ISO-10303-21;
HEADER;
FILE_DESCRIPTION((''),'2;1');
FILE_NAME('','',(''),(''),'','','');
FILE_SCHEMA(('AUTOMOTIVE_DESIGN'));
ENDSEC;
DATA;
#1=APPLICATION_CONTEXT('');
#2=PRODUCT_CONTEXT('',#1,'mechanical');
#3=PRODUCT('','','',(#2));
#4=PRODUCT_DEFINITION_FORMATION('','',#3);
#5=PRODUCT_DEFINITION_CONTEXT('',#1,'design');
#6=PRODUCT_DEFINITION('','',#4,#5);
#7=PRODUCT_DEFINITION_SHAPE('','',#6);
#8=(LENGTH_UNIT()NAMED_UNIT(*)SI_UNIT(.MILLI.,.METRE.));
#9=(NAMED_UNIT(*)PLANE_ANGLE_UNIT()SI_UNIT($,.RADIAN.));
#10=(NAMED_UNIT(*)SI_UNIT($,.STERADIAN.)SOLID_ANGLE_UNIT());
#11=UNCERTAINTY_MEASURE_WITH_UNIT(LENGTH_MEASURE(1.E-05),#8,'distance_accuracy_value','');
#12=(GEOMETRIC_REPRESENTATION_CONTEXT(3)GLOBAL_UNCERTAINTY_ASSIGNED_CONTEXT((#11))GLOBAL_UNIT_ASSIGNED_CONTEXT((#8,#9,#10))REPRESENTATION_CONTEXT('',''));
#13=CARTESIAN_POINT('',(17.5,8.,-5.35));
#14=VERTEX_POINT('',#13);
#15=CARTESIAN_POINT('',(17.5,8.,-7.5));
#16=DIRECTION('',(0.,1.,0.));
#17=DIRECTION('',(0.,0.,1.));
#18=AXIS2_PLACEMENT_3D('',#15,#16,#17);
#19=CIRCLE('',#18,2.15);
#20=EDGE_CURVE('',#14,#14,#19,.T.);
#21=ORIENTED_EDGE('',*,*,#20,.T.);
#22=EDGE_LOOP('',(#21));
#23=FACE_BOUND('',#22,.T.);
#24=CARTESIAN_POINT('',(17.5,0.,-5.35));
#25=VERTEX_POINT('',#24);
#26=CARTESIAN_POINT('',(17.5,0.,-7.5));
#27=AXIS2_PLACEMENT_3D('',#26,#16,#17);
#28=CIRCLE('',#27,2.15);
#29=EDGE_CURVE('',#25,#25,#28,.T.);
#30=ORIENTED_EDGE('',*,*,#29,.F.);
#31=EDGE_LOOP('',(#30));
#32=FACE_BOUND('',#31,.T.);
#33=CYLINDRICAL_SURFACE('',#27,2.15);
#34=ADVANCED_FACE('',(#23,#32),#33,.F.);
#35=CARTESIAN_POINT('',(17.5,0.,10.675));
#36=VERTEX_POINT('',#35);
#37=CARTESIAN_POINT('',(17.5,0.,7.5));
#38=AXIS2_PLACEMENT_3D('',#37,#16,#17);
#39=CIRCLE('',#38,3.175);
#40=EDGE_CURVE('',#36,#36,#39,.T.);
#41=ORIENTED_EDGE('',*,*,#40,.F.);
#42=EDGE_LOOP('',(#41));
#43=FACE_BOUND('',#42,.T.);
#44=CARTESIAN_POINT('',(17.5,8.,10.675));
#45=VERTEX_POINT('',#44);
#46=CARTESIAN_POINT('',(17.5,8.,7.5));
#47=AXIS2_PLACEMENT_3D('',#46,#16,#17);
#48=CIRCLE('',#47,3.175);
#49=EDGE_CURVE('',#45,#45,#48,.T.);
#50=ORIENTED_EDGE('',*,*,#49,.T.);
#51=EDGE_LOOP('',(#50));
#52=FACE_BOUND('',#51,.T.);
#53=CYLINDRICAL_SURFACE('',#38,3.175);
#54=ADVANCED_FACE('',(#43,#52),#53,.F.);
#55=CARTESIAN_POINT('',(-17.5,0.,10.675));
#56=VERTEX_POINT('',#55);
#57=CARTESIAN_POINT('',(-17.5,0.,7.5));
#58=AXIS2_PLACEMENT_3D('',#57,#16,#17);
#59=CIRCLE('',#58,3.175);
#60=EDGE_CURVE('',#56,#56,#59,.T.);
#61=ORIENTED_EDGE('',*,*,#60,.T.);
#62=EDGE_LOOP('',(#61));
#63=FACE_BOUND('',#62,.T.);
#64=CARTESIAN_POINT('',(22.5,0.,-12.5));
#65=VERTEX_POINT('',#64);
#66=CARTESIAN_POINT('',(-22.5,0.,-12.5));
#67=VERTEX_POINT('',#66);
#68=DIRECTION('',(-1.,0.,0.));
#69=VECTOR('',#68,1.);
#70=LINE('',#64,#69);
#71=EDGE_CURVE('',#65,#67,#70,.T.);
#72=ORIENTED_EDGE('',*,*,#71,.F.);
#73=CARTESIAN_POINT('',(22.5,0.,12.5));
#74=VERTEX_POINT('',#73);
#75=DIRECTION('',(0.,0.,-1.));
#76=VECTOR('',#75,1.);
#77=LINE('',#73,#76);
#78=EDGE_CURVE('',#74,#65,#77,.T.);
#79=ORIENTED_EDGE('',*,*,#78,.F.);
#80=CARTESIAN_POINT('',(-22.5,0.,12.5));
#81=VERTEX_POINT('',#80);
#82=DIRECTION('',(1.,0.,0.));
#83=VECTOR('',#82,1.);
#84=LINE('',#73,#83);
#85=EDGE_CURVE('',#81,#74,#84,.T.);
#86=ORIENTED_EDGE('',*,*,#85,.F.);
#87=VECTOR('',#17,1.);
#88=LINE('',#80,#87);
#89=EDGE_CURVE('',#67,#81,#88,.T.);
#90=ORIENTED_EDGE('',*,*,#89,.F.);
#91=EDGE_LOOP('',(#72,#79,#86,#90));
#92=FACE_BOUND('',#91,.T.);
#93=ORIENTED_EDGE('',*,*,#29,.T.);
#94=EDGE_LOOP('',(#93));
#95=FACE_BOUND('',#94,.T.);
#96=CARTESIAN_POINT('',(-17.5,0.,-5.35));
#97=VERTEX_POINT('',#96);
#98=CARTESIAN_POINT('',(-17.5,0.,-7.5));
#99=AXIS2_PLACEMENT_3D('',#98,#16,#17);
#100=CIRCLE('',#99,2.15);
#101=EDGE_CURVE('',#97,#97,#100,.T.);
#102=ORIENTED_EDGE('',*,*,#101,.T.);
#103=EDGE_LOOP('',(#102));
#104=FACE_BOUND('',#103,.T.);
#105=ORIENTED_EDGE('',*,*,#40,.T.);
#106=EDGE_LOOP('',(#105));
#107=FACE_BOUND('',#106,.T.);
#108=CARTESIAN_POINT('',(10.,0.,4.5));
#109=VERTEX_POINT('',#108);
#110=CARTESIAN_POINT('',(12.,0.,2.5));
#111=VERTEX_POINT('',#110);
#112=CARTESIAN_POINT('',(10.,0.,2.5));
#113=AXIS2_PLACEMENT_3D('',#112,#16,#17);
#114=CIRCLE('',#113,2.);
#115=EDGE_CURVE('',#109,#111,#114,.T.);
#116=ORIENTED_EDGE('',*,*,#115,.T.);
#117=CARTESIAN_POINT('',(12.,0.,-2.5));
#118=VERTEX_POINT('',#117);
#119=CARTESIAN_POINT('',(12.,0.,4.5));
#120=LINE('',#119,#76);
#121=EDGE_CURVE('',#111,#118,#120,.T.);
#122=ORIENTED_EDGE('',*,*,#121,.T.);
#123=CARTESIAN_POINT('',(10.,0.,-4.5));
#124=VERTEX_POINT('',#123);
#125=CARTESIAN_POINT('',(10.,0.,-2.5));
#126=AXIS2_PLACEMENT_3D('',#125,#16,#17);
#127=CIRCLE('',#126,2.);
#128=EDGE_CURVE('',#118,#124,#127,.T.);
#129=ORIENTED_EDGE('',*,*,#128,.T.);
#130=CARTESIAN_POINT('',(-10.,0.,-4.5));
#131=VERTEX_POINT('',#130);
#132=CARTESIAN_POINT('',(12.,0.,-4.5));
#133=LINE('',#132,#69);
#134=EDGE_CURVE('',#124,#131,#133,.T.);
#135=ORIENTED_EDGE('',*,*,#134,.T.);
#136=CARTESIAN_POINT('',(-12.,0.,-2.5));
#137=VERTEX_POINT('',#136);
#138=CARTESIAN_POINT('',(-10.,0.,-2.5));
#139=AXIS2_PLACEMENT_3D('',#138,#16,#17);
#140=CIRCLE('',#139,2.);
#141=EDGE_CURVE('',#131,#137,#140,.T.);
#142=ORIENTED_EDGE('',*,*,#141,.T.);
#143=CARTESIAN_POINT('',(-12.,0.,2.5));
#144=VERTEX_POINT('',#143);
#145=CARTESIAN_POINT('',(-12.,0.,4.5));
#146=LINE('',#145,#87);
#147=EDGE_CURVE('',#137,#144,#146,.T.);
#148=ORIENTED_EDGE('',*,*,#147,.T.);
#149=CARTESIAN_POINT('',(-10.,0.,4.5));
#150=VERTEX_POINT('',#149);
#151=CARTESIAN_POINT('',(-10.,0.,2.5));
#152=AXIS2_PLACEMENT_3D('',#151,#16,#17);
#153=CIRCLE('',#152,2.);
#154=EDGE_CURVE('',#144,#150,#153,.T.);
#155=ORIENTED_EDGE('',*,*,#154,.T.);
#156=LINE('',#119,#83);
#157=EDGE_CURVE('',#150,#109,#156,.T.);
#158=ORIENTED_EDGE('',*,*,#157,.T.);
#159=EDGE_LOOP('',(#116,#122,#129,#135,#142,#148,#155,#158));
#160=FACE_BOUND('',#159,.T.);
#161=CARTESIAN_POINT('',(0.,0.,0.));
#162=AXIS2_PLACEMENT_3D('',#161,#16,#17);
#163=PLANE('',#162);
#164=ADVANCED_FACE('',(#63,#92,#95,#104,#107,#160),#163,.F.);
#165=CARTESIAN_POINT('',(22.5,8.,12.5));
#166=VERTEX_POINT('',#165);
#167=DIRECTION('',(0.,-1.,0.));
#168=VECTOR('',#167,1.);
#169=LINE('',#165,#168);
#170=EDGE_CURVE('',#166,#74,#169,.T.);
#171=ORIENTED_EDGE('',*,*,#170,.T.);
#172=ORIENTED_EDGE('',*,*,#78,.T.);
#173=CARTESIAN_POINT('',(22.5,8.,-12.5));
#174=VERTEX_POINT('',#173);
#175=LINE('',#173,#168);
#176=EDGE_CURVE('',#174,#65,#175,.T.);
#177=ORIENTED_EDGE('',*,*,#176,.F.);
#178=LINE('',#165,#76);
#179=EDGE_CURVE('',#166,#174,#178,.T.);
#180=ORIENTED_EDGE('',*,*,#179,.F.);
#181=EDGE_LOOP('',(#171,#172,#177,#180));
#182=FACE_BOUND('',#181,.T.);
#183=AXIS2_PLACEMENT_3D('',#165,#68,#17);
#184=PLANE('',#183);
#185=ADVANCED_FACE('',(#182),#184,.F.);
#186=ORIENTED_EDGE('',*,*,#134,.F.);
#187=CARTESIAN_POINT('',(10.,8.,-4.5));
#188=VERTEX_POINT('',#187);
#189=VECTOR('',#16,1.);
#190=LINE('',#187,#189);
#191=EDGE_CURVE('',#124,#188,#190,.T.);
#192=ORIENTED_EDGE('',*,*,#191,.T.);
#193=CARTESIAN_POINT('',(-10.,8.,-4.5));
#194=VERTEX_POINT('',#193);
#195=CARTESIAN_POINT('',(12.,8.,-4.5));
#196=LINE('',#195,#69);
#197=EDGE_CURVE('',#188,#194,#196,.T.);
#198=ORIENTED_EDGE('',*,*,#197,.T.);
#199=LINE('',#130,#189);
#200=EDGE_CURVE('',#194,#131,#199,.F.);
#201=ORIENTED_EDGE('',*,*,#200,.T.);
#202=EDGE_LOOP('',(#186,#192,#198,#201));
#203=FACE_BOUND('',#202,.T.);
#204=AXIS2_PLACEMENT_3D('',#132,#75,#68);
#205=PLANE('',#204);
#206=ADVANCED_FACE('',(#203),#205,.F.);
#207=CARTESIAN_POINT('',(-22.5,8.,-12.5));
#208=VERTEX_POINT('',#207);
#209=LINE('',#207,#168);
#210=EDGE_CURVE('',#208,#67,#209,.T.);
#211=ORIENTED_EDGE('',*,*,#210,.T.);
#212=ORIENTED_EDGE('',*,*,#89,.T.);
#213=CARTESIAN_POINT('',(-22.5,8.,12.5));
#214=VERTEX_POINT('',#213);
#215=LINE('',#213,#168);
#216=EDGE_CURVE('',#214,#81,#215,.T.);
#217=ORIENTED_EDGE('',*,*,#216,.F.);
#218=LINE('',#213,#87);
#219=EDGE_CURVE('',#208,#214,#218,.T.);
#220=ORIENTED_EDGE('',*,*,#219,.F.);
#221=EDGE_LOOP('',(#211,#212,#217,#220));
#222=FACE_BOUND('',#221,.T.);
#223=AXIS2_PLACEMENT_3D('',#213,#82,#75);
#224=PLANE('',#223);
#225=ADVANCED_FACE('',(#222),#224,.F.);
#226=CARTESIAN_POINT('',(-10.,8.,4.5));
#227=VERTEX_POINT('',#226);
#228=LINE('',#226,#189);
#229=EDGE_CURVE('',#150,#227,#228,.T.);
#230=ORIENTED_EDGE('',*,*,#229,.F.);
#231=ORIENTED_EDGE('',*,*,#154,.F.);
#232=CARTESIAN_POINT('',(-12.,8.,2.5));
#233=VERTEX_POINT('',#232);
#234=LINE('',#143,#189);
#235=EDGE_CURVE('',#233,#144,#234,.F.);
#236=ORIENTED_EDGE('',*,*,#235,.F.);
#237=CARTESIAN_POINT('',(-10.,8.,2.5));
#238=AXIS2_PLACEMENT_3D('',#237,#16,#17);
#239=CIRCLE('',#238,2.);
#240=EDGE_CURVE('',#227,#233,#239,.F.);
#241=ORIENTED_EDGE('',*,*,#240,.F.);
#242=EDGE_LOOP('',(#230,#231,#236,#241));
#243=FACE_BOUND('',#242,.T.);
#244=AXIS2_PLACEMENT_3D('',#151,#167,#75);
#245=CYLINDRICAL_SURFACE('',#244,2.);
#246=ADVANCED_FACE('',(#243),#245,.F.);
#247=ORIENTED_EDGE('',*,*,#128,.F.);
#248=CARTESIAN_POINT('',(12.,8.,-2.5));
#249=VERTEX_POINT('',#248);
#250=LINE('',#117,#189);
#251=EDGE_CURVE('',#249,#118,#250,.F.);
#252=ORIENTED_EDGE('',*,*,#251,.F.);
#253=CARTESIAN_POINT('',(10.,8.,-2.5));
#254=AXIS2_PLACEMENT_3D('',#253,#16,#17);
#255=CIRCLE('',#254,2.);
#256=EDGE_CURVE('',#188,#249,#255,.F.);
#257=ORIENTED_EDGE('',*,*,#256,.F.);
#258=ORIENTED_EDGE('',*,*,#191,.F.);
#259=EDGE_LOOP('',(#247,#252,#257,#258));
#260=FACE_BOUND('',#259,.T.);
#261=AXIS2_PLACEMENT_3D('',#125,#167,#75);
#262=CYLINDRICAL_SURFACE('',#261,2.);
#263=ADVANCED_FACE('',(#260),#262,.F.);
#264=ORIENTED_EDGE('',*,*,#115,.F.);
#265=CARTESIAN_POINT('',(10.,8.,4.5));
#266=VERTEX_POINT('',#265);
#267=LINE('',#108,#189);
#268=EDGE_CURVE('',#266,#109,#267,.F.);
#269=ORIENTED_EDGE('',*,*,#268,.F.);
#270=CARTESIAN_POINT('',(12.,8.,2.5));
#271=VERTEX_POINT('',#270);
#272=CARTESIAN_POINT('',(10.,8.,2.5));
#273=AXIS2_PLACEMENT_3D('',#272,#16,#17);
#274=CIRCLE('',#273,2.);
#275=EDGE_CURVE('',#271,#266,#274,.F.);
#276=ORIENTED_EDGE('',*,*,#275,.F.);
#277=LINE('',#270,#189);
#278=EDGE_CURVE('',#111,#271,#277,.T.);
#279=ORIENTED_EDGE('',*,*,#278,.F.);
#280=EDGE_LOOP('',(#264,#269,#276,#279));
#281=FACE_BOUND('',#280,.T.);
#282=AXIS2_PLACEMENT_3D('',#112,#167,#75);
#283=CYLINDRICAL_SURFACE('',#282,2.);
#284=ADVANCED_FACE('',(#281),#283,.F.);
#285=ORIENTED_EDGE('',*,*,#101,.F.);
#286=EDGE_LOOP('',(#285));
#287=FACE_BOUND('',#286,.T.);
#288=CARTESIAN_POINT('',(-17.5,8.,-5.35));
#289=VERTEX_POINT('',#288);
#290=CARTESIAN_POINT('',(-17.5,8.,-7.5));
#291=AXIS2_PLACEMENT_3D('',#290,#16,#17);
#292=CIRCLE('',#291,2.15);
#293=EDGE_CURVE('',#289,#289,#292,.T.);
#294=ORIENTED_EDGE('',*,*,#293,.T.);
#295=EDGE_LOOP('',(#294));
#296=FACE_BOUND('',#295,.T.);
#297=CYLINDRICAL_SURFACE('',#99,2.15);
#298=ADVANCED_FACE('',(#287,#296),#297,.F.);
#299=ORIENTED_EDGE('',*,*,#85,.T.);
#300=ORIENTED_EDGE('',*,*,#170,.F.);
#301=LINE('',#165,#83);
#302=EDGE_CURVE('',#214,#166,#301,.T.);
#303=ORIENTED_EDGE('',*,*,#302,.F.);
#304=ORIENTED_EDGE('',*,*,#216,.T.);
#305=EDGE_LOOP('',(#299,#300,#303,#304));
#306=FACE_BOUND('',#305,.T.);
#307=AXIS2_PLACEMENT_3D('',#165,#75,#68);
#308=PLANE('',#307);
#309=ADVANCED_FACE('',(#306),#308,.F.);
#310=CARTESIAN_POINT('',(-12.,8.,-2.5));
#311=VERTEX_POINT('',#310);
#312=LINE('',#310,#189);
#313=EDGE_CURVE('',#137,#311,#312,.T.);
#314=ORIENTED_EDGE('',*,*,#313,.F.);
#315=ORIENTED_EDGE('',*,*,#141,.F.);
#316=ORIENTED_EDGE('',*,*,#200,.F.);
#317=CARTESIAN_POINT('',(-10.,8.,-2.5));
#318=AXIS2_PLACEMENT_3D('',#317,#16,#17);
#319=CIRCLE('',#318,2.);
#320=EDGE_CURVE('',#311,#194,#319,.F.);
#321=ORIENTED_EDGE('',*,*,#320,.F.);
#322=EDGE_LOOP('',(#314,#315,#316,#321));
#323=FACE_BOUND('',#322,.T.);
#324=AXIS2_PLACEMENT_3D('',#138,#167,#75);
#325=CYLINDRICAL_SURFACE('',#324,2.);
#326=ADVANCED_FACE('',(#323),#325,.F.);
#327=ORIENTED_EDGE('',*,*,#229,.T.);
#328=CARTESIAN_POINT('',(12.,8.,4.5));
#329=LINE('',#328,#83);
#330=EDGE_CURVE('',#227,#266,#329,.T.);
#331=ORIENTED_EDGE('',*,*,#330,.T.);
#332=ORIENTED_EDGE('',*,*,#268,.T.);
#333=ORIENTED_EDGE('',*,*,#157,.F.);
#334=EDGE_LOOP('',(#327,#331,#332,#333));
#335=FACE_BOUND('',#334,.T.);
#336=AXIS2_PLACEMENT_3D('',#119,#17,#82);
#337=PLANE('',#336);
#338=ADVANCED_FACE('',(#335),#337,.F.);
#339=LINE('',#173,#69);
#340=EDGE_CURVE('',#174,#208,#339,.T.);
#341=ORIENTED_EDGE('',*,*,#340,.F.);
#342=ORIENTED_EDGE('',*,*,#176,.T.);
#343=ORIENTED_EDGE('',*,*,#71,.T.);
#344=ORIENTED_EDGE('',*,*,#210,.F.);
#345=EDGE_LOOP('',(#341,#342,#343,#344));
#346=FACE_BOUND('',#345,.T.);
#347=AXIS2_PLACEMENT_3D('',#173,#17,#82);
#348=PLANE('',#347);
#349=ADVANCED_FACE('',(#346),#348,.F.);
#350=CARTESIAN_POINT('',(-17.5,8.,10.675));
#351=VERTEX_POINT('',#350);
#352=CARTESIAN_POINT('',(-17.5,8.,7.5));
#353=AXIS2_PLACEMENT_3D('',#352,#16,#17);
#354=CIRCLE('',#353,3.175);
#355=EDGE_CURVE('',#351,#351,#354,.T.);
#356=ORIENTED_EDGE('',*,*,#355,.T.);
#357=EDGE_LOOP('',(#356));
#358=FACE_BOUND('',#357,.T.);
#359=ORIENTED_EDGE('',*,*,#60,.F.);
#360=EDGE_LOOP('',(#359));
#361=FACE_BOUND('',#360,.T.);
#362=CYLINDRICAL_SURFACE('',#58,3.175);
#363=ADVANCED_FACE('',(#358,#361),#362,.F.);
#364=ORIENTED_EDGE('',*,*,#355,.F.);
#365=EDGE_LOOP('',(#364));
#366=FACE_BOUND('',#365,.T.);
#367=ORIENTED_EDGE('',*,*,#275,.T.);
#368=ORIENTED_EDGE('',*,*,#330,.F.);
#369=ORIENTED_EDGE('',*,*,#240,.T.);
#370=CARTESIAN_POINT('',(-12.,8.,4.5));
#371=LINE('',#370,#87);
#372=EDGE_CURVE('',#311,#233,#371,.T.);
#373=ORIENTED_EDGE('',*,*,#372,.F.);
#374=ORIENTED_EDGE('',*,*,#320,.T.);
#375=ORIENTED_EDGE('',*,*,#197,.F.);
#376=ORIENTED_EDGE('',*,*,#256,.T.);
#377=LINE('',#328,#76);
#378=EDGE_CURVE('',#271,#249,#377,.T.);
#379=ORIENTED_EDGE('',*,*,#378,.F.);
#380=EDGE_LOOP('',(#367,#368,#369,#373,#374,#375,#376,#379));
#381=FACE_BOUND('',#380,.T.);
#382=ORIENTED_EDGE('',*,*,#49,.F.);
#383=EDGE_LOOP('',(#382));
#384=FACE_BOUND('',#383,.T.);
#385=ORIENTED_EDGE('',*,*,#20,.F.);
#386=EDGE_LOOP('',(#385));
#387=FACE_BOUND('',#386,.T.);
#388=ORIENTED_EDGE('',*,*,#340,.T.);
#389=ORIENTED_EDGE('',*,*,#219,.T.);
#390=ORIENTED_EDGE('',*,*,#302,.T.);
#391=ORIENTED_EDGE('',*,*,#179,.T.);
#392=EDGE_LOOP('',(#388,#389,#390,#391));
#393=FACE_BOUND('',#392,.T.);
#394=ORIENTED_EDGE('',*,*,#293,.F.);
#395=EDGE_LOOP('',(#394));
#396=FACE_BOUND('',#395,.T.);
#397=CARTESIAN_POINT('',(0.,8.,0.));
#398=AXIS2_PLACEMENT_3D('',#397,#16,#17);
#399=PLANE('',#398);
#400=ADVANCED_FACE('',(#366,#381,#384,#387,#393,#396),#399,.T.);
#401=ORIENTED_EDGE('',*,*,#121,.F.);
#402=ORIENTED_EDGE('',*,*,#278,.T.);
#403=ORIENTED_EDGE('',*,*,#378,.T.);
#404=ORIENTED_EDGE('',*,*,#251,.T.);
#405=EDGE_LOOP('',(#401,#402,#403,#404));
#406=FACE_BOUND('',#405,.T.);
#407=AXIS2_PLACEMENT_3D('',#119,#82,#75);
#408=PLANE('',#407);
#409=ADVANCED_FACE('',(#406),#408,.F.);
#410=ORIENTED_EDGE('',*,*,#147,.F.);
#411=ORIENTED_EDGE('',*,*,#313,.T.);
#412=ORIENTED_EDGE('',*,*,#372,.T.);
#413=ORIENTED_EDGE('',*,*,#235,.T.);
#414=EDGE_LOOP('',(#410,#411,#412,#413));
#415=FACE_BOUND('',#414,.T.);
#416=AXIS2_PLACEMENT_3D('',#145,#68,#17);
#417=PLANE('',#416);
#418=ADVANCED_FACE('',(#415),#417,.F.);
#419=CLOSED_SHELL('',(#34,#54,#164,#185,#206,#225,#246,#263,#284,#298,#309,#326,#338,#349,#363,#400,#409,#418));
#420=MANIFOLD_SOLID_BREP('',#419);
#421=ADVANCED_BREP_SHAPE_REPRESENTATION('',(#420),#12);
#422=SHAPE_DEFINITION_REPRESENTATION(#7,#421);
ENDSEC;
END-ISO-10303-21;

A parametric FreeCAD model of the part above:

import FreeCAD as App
import Part
import Sketcher
from FreeCAD import Vector


def edges_at(feature, points):
    """Names of the edges that pass closest to the given points."""
    edges = feature.Shape.Edges
    near = lambda p: min(range(len(edges)), key=lambda i: edges[i].distToShape(Part.Vertex(*p))[0])
    return sorted({f"Edge{near(p) + 1}" for p in points})

doc = App.newDocument("Part")
params = doc.addObject("Spreadsheet::Sheet", "Params")
for row, (alias, value) in enumerate([
    ("sketch1_width", "45 mm"),
    ("sketch1_height", "25 mm"),
    ("pad1_length", "8 mm"),
    ("sketch2_diameter", "4.3 mm"),
    ("sketch2_diameter2", "6.35 mm"),
    ("sketch3_width", "24 mm"),
    ("sketch3_height", "9 mm"),
    ("fillet_radius", "2 mm"),
], start=1):
    params.set(f"A{row}", alias)
    params.set(f"B{row}", "=" + value)
    params.setAlias(f"B{row}", alias)

body = doc.addObject("PartDesign::Body", "Body")

sketch1 = doc.addObject("Sketcher::SketchObject", "Sketch")
body.addObject(sketch1)
sketch1.AttachmentSupport = (doc.XZ_Plane, [""])
sketch1.MapMode = "FlatFace"
sketch1.addGeometry([
    Part.LineSegment(Vector(-22, -12, 0), Vector(-22, 12, 0)),
    Part.LineSegment(Vector(-22, 12, 0), Vector(22, 12, 0)),
    Part.LineSegment(Vector(22, 12, 0), Vector(22, -12, 0)),
    Part.LineSegment(Vector(22, -12, 0), Vector(-22, -12, 0)),
], False)
sketch1.addConstraint([
    Sketcher.Constraint("Coincident", 0, 2, 1, 1),
    Sketcher.Constraint("Coincident", 1, 2, 2, 1),
    Sketcher.Constraint("Coincident", 2, 2, 3, 1),
    Sketcher.Constraint("Coincident", 3, 2, 0, 1),
    Sketcher.Constraint("Vertical", 0),
    Sketcher.Constraint("Horizontal", 1),
    Sketcher.Constraint("Vertical", 2),
    Sketcher.Constraint("Horizontal", 3),
    Sketcher.Constraint("Symmetric", 0, 2, 2, 2, -1, 1),
    Sketcher.Constraint("DistanceX", 1, 1, 1, 2, 45.0),
    Sketcher.Constraint("DistanceY", 0, 1, 0, 2, 25.0),
])
sketch1.setExpression("Constraints[9]", "Params.sketch1_width")
sketch1.setExpression("Constraints[10]", "Params.sketch1_height")
pad1 = doc.addObject("PartDesign::Pad", "Pad")
body.addObject(pad1)
pad1.Profile = sketch1
pad1.setExpression("Length", "Params.pad1_length")
pad1.Reversed = True

sketch2 = doc.addObject("Sketcher::SketchObject", "Sketch001")
body.addObject(sketch2)
sketch2.AttachmentSupport = (doc.XZ_Plane, [""])
sketch2.MapMode = "FlatFace"
sketch2.AttachmentOffset = App.Placement(Vector(0, 0, -8), App.Rotation())
sketch2.addGeometry([
    Part.Circle(Vector(-17.5, -7.5, 0), Vector(0, 0, 1), 2.1),
    Part.Circle(Vector(17.5, -7.5, 0), Vector(0, 0, 1), 2.1),
    Part.Circle(Vector(17.5, 7.5, 0), Vector(0, 0, 1), 3.2),
    Part.Circle(Vector(-17.5, 7.5, 0), Vector(0, 0, 1), 3.2),
], False)
sketch2.addConstraint([
    Sketcher.Constraint("Equal", 0, 1),
    Sketcher.Constraint("Equal", 2, 3),
    Sketcher.Constraint("Symmetric", 0, 3, 2, 3, -1, 1),
    Sketcher.Constraint("Symmetric", 1, 3, 3, 3, -1, 1),
    Sketcher.Constraint("Symmetric", 0, 3, 1, 3, -2),
    Sketcher.Constraint("Diameter", 0, 4.3),
    Sketcher.Constraint("Diameter", 2, 6.35),
    Sketcher.Constraint("DistanceX", 0, 3, 1, 3, 35.0),
    Sketcher.Constraint("DistanceY", 1, 3, 2, 3, 15.0),
])
sketch2.setExpression("Constraints[5]", "Params.sketch2_diameter")
sketch2.setExpression("Constraints[6]", "Params.sketch2_diameter2")
pocket1 = doc.addObject("PartDesign::Pocket", "Pocket")
body.addObject(pocket1)
pocket1.Profile = sketch2
pocket1.Type = "ThroughAll"
pocket1.Reversed = True

sketch3 = doc.addObject("Sketcher::SketchObject", "Sketch002")
body.addObject(sketch3)
sketch3.AttachmentSupport = (doc.XZ_Plane, [""])
sketch3.MapMode = "FlatFace"
sketch3.AttachmentOffset = App.Placement(Vector(0, 0, -8), App.Rotation())
sketch3.addGeometry([
    Part.LineSegment(Vector(-12, -4, 0), Vector(-12, 4, 0)),
    Part.LineSegment(Vector(-12, 4, 0), Vector(12, 4, 0)),
    Part.LineSegment(Vector(12, 4, 0), Vector(12, -4, 0)),
    Part.LineSegment(Vector(12, -4, 0), Vector(-12, -4, 0)),
], False)
sketch3.addConstraint([
    Sketcher.Constraint("Coincident", 0, 2, 1, 1),
    Sketcher.Constraint("Coincident", 1, 2, 2, 1),
    Sketcher.Constraint("Coincident", 2, 2, 3, 1),
    Sketcher.Constraint("Coincident", 3, 2, 0, 1),
    Sketcher.Constraint("Vertical", 0),
    Sketcher.Constraint("Horizontal", 1),
    Sketcher.Constraint("Vertical", 2),
    Sketcher.Constraint("Horizontal", 3),
    Sketcher.Constraint("Symmetric", 0, 2, 2, 2, -1, 1),
    Sketcher.Constraint("DistanceX", 1, 1, 1, 2, 24.0),
    Sketcher.Constraint("DistanceY", 0, 1, 0, 2, 9.0),
])
sketch3.setExpression("Constraints[9]", "Params.sketch3_width")
sketch3.setExpression("Constraints[10]", "Params.sketch3_height")
pocket2 = doc.addObject("PartDesign::Pocket", "Pocket001")
body.addObject(pocket2)
pocket2.Profile = sketch3
pocket2.Type = "ThroughAll"
pocket2.Reversed = True
doc.recompute()

fillet = doc.addObject("PartDesign::Fillet", "Fillet")
body.addObject(fillet)
fillet.Base = (pocket2, edges_at(pocket2, [
    (-12, 4, 4.5),
    (-12, 4, -4.5),
    (12, 4, -4.5),
    (12, 4, 4.5),
]))
fillet.setExpression("Radius", "Params.fillet_radius")

doc.recompute()
